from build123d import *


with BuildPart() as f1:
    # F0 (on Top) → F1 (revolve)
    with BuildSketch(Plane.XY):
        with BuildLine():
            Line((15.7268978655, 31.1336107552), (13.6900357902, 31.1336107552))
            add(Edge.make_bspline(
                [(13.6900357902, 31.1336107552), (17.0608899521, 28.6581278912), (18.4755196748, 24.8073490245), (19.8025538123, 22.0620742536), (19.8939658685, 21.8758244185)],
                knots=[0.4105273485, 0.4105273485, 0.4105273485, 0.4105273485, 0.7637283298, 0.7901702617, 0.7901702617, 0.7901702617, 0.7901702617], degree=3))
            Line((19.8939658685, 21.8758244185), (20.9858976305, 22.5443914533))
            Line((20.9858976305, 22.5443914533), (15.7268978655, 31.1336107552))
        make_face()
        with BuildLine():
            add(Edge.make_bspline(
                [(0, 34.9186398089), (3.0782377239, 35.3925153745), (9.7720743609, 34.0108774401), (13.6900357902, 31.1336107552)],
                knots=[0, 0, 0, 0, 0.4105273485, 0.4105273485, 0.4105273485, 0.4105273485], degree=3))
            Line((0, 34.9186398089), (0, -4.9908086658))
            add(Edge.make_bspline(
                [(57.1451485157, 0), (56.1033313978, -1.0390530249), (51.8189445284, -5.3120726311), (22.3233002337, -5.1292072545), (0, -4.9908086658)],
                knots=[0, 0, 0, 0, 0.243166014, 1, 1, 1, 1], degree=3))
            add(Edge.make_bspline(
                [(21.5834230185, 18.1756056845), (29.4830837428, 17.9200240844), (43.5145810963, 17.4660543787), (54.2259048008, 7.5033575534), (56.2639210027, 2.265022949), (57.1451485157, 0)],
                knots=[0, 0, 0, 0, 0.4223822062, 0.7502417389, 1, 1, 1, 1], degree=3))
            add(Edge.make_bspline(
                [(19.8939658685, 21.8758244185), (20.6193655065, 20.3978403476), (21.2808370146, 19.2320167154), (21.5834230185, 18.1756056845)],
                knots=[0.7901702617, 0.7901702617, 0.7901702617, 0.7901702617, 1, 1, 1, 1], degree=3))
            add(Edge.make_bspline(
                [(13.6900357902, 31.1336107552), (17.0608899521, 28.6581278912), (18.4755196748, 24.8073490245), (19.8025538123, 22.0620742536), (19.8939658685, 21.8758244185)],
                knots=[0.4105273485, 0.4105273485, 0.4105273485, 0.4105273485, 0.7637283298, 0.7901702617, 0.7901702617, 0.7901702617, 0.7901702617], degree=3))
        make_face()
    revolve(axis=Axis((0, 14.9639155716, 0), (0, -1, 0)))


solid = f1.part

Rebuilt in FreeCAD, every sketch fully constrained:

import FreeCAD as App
import Part
import Sketcher

V = App.Vector
Q = App.Units.Quantity

doc = App.newDocument("Part")
body = doc.addObject("PartDesign::Body", "Body")

# Sketch on XY plane
sketch1 = body.newObject("Sketcher::SketchObject", "Sketch")
sketch1.AttachmentSupport = (doc.getObject("XY_Plane"), [""])
sketch1.MapMode = "FlatFace"
sketch1.addGeometry([
    Part.LineSegment(V(15.726898, 31.133611, 0), V(13.690036, 31.133611, 0)),  # 0
    Part.BSplineCurve([V(0, 34.91864, 0), V(3.078238, 35.392515, 0), V(9.772074, 34.010877, 0), V(13.690036, 31.133611, 0)], [4, 4], [0, 0.410527348], False, 3, [1, 1, 1, 1], False),  # 1
    Part.LineSegment(V(0, 34.91864, 0), V(0, -4.990809, 0)),  # 2
    Part.BSplineCurve([V(57.145149, 0, 0), V(56.103331, -1.039053, 0), V(51.818945, -5.312073, 0), V(22.3233, -5.129207, 0), V(0, -4.990809, 0)], [4, 1, 4], [0, 0.243166014, 1], False, 3, [1, 1, 1, 1, 1], False),  # 3
    Part.BSplineCurve([V(21.583423, 18.175606, 0), V(29.483084, 17.920024, 0), V(43.514581, 17.466054, 0), V(54.225905, 7.503358, 0), V(56.263921, 2.265023, 0), V(57.145149, 0, 0)], [4, 1, 1, 4], [0, 0.422382206, 0.750241739, 1], False, 3, [1, 1, 1, 1, 1, 1], False),  # 4
    Part.BSplineCurve([V(19.893966, 21.875824, 0), V(20.619366, 20.39784, 0), V(21.280837, 19.232017, 0), V(21.583423, 18.175606, 0)], [4, 4], [0.790170262, 1], False, 3, [1, 1, 1, 1], False),  # 5
    Part.LineSegment(V(19.893966, 21.875824, 0), V(20.985898, 22.544391, 0)),  # 6
    Part.LineSegment(V(20.985898, 22.544391, 0), V(15.726898, 31.133611, 0)),  # 7
], False)
sketch1.addConstraint([
    Sketcher.Constraint("Block", 1),
    Sketcher.Constraint("Block", 3),
    Sketcher.Constraint("Block", 4),
    Sketcher.Constraint("Block", 5),
    Sketcher.Constraint("Coincident", 0, 2, 1, 2),
    Sketcher.Constraint("Coincident", 1, 1, 2, 1),
    Sketcher.Constraint("Coincident", 2, 2, 3, 2),
    Sketcher.Constraint("Coincident", 5, 1, 6, 1),
    Sketcher.Constraint("Coincident", 6, 2, 7, 1),
    Sketcher.Constraint("Coincident", 7, 2, 0, 1),
    Sketcher.Constraint("Horizontal", 0),
    Sketcher.Constraint("DistanceX", 7, 2, 6, 2, Q("5.259 mm")),
    Sketcher.Constraint("DistanceY", 2, 2, 6, 2, Q("27.5352 mm")),
    Sketcher.Constraint("Distance", 6, Q("1.28035 mm")),
])
revolution = body.newObject("PartDesign::Revolution", "Revolution")
revolution.Profile = sketch1
revolution.ReferenceAxis = (sketch1, ["V_Axis"])
revolution.Angle = 360

doc.recompute()
